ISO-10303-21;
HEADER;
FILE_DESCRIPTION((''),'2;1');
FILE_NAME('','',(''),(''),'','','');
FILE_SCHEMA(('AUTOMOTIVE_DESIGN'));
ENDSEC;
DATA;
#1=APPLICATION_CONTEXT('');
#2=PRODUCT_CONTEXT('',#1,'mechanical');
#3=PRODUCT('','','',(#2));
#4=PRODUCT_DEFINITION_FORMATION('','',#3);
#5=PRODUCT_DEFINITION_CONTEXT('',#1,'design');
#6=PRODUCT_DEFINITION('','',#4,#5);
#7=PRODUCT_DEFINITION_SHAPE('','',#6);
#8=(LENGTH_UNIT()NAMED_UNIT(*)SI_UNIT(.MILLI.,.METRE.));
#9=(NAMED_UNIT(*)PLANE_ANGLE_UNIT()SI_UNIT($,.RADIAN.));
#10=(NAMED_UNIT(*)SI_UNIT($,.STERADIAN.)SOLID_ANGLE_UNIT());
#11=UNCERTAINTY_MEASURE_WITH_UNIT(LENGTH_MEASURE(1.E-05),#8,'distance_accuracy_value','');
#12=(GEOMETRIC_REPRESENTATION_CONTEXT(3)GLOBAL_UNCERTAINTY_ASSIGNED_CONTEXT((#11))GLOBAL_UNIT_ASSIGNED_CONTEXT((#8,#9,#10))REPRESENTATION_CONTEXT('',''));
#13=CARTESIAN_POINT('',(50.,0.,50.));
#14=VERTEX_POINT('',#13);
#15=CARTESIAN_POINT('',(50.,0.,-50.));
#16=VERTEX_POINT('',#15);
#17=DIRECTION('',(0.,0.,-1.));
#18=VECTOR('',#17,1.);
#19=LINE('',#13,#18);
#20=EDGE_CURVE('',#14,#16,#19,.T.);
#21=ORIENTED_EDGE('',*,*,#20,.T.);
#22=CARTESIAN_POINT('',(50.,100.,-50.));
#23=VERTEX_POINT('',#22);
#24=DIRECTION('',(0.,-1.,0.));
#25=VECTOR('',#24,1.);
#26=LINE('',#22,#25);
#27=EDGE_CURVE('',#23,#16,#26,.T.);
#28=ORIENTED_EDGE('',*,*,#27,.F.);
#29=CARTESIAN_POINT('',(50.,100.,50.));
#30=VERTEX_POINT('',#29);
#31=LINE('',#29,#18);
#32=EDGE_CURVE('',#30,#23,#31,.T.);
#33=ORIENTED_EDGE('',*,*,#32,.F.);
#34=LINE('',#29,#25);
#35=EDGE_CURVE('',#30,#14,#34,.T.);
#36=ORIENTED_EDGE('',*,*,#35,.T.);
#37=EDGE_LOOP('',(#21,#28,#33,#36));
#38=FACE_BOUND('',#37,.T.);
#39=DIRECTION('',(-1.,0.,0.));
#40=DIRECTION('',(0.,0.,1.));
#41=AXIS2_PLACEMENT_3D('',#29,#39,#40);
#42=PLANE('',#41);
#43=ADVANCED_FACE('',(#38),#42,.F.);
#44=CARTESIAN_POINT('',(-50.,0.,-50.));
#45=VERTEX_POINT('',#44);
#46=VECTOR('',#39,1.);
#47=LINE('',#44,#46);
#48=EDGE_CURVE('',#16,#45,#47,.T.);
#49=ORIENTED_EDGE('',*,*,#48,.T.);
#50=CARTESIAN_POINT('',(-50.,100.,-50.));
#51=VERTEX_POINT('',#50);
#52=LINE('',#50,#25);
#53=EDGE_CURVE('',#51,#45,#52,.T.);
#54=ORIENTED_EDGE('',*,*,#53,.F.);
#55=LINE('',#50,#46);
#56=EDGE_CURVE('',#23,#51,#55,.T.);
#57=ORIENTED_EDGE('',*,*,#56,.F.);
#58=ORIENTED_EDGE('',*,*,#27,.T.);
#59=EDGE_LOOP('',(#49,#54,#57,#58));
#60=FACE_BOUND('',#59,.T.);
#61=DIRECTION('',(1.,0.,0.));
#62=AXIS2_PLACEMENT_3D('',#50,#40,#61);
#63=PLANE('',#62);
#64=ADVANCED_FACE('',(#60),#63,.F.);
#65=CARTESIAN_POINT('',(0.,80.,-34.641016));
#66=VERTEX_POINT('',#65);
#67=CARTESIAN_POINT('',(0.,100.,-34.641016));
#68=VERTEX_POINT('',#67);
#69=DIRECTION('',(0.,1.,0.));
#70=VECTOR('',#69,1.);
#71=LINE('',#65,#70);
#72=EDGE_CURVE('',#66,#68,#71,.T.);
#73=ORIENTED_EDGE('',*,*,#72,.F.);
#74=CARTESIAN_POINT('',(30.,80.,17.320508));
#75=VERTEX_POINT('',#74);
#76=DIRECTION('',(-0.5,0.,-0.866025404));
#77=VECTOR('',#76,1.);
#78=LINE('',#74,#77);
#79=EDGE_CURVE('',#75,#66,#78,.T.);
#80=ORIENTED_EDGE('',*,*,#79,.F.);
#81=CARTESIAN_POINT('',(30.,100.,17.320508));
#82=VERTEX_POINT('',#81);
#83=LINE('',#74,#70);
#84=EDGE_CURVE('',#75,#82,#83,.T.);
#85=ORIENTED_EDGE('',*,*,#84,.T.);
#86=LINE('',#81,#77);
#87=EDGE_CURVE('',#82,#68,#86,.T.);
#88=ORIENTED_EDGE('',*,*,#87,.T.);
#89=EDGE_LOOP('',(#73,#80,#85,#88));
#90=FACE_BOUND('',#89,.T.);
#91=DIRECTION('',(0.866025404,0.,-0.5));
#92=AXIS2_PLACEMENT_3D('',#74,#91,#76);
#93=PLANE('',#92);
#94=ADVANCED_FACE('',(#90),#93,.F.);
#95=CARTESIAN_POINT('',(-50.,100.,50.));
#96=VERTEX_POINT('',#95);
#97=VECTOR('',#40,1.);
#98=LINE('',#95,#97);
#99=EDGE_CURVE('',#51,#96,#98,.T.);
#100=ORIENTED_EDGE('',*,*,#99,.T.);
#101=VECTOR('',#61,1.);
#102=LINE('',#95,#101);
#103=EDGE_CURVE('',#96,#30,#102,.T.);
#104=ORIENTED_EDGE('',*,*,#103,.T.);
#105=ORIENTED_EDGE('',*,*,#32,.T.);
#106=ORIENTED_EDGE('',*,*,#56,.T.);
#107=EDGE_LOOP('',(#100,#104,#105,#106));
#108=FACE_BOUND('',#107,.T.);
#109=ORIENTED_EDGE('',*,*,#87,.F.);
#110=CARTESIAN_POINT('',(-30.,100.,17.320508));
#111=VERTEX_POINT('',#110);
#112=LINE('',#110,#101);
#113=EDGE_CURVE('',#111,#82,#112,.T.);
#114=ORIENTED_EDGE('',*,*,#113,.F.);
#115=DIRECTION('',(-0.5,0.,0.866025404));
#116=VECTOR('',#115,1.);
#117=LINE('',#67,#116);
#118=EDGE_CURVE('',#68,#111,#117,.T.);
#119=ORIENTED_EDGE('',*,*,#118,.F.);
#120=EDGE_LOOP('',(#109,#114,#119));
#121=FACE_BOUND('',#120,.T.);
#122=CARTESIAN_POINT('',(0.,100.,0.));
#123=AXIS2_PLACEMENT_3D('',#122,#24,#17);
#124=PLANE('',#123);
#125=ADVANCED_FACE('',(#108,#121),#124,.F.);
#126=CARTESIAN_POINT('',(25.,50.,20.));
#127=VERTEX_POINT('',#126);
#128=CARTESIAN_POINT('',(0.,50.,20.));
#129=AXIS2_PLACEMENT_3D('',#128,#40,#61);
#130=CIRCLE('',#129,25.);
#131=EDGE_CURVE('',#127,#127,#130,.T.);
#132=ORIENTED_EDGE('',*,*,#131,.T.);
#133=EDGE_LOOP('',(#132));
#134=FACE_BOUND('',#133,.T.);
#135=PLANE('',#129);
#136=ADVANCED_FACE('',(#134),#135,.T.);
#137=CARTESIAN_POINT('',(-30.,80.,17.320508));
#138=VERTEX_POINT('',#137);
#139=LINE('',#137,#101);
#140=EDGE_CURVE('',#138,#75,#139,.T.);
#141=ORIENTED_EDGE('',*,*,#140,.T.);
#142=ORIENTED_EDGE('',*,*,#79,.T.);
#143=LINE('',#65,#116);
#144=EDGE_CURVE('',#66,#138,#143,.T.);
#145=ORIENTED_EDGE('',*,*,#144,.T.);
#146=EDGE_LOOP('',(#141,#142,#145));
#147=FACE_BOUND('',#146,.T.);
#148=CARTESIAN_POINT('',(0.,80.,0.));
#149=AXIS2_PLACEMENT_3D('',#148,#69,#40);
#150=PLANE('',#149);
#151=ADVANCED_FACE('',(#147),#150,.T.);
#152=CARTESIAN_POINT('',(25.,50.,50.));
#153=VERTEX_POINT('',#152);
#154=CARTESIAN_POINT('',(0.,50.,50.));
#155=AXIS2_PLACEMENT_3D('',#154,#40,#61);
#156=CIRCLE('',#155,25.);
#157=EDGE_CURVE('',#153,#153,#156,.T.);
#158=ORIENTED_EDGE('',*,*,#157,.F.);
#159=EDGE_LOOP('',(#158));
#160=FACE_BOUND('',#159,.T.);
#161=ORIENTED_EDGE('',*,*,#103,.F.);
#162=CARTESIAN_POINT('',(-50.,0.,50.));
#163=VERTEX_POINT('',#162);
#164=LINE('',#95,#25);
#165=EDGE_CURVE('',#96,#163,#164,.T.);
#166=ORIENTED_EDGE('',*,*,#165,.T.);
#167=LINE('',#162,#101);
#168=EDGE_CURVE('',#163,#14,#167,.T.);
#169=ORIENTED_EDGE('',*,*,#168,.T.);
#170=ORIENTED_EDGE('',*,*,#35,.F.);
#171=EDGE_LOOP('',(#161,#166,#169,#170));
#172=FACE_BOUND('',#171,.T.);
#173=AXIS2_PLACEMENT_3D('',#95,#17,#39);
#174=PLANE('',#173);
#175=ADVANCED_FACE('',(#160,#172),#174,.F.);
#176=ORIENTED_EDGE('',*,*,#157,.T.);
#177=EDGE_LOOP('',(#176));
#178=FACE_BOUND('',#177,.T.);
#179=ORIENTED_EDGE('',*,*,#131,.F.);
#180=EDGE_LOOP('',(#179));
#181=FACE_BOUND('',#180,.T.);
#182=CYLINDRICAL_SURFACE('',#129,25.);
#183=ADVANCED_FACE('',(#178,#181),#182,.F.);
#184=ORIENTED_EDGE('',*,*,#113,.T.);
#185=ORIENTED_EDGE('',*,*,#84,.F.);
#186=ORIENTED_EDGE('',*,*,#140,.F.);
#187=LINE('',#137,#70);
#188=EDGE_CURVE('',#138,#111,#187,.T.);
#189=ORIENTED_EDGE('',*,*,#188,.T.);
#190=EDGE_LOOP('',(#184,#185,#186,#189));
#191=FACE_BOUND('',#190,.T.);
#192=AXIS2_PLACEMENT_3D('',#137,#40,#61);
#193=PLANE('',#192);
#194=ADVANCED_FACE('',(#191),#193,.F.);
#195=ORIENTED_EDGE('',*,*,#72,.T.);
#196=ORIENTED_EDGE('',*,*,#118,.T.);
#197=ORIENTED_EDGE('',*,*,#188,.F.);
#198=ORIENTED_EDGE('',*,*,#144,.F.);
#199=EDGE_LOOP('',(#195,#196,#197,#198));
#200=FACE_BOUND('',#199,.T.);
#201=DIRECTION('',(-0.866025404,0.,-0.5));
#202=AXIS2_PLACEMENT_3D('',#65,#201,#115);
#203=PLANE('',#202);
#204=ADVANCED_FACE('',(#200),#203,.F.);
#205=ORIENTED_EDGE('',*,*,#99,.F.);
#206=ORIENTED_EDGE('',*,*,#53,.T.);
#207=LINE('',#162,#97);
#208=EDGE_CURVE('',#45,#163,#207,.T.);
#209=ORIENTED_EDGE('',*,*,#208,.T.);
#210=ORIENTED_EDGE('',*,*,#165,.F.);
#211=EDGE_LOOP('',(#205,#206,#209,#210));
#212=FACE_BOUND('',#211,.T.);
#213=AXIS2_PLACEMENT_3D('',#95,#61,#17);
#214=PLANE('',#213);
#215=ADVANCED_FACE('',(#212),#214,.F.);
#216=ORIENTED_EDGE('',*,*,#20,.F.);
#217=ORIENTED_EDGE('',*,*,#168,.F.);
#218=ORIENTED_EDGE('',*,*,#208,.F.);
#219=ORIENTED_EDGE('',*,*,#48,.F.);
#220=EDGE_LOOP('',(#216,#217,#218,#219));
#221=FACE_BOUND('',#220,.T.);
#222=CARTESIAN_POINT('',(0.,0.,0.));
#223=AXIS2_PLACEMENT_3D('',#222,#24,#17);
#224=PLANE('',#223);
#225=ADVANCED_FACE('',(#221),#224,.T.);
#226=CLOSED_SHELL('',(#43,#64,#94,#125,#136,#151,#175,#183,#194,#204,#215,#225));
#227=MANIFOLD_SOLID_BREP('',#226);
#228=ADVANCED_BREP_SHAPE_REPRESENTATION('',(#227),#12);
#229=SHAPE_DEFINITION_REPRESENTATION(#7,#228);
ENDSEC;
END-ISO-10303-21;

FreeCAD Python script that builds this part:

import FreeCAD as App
import Part
import Sketcher
Q = App.Units.Quantity

doc = App.newDocument("Part")
params = doc.addObject("Spreadsheet::Sheet", "Params")
for row, (alias, value) in enumerate([
    ("sketch1_width", "100 mm"),
    ("pad1_length", "100 mm"),
    ("sketch2_diameter", "50 mm"),
    ("pocket1_length", "30 mm"),
    ("sketch3_width", "60 mm"),
    ("pocket2_length", "20 mm"),
], start=1):
    params.set(f"A{row}", alias)
    params.set(f"B{row}", "=" + value)
    params.setAlias(f"B{row}", alias)

body = doc.addObject("PartDesign::Body", "Body")

# Sketch on XZ plane
sketch1 = body.newObject("Sketcher::SketchObject", "Sketch")
sketch1.AttachmentSupport = (doc.getObject("XZ_Plane"), [""])
sketch1.MapMode = "FlatFace"
sketch1.addGeometry(Part.LineSegment(App.Vector(-50, -50, 0), App.Vector(-50, 50, 0)), False)
sketch1.addGeometry(Part.LineSegment(App.Vector(-50, 50, 0), App.Vector(50, 50, 0)), False)
sketch1.addGeometry(Part.LineSegment(App.Vector(50, 50, 0), App.Vector(50, -50, 0)), False)
sketch1.addGeometry(Part.LineSegment(App.Vector(50, -50, 0), App.Vector(-50, -50, 0)), False)
sketch1.addConstraint(Sketcher.Constraint("Coincident", 0, 2, 1, 1))
sketch1.addConstraint(Sketcher.Constraint("Coincident", 1, 2, 2, 1))
sketch1.addConstraint(Sketcher.Constraint("Coincident", 2, 2, 3, 1))
sketch1.addConstraint(Sketcher.Constraint("Coincident", 3, 2, 0, 1))
sketch1.addConstraint(Sketcher.Constraint("Vertical", 0))
sketch1.addConstraint(Sketcher.Constraint("Horizontal", 1))
sketch1.addConstraint(Sketcher.Constraint("Vertical", 2))
sketch1.addConstraint(Sketcher.Constraint("Horizontal", 3))
sketch1.addConstraint(Sketcher.Constraint("Symmetric", 0, 2, 2, 2, -1, 1))
sketch1.addConstraint(Sketcher.Constraint("Equal", 3, 0))
sketch1.addConstraint(Sketcher.Constraint("DistanceX", 1, 1, 1, 2, Q("100 mm")))
sketch1.setExpression("Constraints[10]", "Params.sketch1_width")
pad1 = body.newObject("PartDesign::Pad", "Pad")
pad1.Profile = sketch1
pad1.setExpression("Length", "Params.pad1_length")
pad1.Reversed = True

# Sketch on XY plane
sketch2 = body.newObject("Sketcher::SketchObject", "Sketch001")
sketch2.AttachmentSupport = (doc.getObject("XY_Plane"), [""])
sketch2.MapMode = "FlatFace"
sketch2.AttachmentOffset = App.Placement(App.Vector(0, 0, 50), App.Rotation())
sketch2.addGeometry(Part.Circle(App.Vector(0, 50, 0), App.Vector(0, 0, 1), 25), False)
sketch2.addConstraint(Sketcher.Constraint("PointOnObject", 0, 3, -2))
sketch2.addConstraint(Sketcher.Constraint("Diameter", 0, Q("50 mm")))
sketch2.addConstraint(Sketcher.Constraint("DistanceY", -1, 1, 0, 3, Q("50 mm")))
sketch2.setExpression("Constraints[1]", "Params.sketch2_diameter")
pocket1 = body.newObject("PartDesign::Pocket", "Pocket")
pocket1.Profile = sketch2
pocket1.setExpression("Length", "Params.pocket1_length")

# Sketch on XZ plane
sketch3 = body.newObject("Sketcher::SketchObject", "Sketch002")
sketch3.AttachmentSupport = (doc.getObject("XZ_Plane"), [""])
sketch3.MapMode = "FlatFace"
sketch3.AttachmentOffset = App.Placement(App.Vector(0, 0, -100), App.Rotation())
sketch3.addGeometry(Part.LineSegment(App.Vector(0, -35, 0), App.Vector(-30, 17, 0)), False)
sketch3.addGeometry(Part.LineSegment(App.Vector(-30, 17, 0), App.Vector(30, 17, 0)), False)
sketch3.addGeometry(Part.LineSegment(App.Vector(30, 17, 0), App.Vector(0, -35, 0)), False)
sketch3.addConstraint(Sketcher.Constraint("Coincident", 0, 2, 1, 1))
sketch3.addConstraint(Sketcher.Constraint("Coincident", 1, 2, 2, 1))
sketch3.addConstraint(Sketcher.Constraint("Coincident", 2, 2, 0, 1))
sketch3.addConstraint(Sketcher.Constraint("Horizontal", 1))
sketch3.addConstraint(Sketcher.Constraint("PointOnObject", 2, 2, -2))
sketch3.addConstraint(Sketcher.Constraint("Equal", 0, 2))
sketch3.addConstraint(Sketcher.Constraint("DistanceX", 1, 1, 1, 2, Q("60 mm")))
sketch3.addConstraint(Sketcher.Constraint("Angle", 0, Q("120 deg")))
sketch3.addConstraint(Sketcher.Constraint("DistanceY", -1, 1, 0, 2, Q("17.320508 mm")))
sketch3.setExpression("Constraints[6]", "Params.sketch3_width")
pocket2 = body.newObject("PartDesign::Pocket", "Pocket001")
pocket2.Profile = sketch3
pocket2.setExpression("Length", "Params.pocket2_length")
pocket2.Reversed = True

doc.recompute()
